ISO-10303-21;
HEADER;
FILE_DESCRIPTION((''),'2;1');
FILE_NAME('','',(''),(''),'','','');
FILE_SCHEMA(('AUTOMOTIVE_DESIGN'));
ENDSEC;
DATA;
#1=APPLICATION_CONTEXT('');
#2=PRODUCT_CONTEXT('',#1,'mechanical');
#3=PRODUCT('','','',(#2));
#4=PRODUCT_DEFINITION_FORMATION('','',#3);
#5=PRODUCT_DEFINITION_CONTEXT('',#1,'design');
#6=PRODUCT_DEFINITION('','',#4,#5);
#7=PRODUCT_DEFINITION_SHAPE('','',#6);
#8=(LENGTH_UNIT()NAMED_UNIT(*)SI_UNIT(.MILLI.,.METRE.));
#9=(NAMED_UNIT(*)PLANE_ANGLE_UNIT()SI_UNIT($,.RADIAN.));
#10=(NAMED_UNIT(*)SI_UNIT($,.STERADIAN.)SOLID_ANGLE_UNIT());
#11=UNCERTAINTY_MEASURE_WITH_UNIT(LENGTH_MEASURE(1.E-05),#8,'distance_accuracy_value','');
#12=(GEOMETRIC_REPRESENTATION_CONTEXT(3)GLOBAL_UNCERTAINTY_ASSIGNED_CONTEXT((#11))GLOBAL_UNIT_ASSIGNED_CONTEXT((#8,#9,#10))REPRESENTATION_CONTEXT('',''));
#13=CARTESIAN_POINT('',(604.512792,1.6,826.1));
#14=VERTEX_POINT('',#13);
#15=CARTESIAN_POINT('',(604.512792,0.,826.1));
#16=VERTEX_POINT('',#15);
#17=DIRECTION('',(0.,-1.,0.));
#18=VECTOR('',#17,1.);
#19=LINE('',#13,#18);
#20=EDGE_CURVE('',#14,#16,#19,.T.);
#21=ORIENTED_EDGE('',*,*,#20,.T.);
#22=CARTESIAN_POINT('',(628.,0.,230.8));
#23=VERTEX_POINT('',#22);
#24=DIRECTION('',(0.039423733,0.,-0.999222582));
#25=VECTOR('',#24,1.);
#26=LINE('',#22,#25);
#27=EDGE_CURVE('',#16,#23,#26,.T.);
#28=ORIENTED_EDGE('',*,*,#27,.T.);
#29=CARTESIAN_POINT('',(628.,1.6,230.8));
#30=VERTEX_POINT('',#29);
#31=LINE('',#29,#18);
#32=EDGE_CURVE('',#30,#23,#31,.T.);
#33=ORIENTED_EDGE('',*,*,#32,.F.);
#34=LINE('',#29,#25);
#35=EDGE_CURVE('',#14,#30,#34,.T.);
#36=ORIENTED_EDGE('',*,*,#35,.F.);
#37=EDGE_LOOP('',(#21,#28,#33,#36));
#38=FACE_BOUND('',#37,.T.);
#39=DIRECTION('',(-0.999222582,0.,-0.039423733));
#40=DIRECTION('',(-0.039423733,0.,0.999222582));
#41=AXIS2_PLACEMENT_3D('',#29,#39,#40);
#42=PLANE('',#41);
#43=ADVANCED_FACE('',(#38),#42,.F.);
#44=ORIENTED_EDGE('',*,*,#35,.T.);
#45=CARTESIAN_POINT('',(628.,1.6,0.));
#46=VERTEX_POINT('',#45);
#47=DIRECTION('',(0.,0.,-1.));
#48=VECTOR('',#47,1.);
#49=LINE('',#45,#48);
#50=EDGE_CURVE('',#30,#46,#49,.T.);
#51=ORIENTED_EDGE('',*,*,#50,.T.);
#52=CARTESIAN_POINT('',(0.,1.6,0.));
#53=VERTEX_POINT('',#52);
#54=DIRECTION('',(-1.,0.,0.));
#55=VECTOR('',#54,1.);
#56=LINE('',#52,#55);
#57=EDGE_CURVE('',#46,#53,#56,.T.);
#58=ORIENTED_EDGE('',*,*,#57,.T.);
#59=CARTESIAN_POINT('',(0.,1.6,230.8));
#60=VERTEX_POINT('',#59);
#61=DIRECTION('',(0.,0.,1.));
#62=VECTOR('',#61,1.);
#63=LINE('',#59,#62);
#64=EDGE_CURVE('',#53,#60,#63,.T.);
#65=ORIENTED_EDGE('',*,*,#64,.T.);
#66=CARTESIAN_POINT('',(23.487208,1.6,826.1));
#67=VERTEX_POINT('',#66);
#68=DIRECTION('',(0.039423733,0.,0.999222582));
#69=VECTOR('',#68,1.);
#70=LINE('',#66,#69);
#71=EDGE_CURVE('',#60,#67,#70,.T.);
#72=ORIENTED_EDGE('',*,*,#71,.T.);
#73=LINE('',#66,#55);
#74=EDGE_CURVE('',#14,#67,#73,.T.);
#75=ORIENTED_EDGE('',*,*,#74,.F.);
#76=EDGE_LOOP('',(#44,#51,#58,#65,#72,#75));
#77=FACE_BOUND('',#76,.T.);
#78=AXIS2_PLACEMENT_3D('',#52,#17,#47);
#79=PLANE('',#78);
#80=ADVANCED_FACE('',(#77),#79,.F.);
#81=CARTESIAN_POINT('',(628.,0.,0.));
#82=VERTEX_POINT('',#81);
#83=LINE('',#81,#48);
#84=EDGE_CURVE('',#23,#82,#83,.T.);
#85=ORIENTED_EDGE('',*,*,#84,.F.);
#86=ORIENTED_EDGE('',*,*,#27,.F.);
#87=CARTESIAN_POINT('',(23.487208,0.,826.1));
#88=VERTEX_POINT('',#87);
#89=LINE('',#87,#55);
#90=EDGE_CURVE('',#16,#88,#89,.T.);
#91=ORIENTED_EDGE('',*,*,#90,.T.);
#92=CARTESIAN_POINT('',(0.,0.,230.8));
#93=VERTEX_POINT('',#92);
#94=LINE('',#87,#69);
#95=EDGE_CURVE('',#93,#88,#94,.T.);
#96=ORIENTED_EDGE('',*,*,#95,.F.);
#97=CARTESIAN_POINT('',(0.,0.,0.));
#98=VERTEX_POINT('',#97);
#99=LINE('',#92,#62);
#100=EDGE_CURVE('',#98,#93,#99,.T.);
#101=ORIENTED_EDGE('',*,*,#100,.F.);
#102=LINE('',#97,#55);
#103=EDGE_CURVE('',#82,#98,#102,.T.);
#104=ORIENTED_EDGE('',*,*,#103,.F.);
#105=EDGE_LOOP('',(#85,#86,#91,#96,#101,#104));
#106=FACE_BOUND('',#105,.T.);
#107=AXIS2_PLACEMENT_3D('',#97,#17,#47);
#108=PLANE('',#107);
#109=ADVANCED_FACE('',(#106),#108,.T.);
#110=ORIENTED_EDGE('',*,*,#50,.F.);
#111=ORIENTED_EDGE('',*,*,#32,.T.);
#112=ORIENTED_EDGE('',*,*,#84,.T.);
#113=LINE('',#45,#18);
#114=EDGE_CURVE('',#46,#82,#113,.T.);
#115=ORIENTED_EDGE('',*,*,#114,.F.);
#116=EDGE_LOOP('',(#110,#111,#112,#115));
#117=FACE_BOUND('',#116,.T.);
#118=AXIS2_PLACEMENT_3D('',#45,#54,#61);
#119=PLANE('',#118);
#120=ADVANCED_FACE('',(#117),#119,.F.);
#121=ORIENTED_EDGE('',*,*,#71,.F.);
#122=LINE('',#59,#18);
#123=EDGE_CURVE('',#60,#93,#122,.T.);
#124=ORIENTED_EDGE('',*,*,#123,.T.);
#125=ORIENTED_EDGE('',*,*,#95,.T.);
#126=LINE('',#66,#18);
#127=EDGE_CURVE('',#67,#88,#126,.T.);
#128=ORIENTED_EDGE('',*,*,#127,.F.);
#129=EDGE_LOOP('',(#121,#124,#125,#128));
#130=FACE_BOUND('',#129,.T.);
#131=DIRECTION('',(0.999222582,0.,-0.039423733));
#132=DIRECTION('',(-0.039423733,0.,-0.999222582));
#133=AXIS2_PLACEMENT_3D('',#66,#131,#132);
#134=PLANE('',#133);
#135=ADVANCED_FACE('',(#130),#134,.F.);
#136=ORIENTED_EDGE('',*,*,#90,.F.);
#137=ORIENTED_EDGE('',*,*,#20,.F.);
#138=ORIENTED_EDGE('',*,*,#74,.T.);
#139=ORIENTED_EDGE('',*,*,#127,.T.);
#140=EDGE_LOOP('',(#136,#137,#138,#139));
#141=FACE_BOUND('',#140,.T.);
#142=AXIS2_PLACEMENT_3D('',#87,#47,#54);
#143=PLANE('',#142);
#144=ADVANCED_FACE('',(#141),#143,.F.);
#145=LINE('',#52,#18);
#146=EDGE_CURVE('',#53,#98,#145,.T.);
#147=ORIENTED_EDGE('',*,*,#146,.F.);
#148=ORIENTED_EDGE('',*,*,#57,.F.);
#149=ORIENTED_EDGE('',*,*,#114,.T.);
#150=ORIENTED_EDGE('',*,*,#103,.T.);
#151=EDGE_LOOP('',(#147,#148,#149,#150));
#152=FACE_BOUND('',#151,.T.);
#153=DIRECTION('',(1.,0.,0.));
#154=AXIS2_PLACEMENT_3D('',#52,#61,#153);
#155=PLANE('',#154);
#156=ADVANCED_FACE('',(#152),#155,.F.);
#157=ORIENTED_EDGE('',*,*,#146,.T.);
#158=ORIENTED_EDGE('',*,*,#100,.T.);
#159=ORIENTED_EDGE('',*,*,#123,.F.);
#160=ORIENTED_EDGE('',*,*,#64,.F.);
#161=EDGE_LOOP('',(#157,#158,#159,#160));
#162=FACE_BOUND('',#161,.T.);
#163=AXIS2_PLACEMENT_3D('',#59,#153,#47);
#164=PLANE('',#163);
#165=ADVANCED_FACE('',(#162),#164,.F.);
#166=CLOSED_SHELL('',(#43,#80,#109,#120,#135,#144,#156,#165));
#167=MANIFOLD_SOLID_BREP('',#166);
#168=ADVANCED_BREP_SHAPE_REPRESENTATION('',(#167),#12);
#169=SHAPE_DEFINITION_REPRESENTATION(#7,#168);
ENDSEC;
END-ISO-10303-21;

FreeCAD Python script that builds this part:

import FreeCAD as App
import Part
import Sketcher
from FreeCAD import Vector

doc = App.newDocument("Part")
body = doc.addObject("PartDesign::Body", "Body")

# Sketch on XZ plane
sketch1 = doc.addObject("Sketcher::SketchObject", "Sketch")
body.addObject(sketch1)
sketch1.AttachmentSupport = (doc.XZ_Plane, [""])
sketch1.MapMode = "FlatFace"
sketch1.addGeometry(Part.LineSegment(Vector(628, 0, 0), Vector(0, 0, 0)), False)
sketch1.addGeometry(Part.LineSegment(Vector(0, 0, 0), Vector(0, 231, 0)), False)
sketch1.addGeometry(Part.LineSegment(Vector(0, 231, 0), Vector(23, 826, 0)), False)
sketch1.addGeometry(Part.LineSegment(Vector(23, 826, 0), Vector(118, 1079, 0)), False)
sketch1.addGeometry(Part.LineSegment(Vector(118, 1079, 0), Vector(510, 1079, 0)), False)
sketch1.addGeometry(Part.LineSegment(Vector(510, 1079, 0), Vector(605, 826, 0)), False)
sketch1.addGeometry(Part.LineSegment(Vector(605, 826, 0), Vector(628, 231, 0)), False)
sketch1.addGeometry(Part.LineSegment(Vector(628, 231, 0), Vector(628, 0, 0)), False)
sketch1.addConstraint(Sketcher.Constraint("Coincident", 0, 2, 1, 1))
sketch1.addConstraint(Sketcher.Constraint("Coincident", 1, 2, 2, 1))
sketch1.addConstraint(Sketcher.Constraint("Coincident", 2, 2, 3, 1))
sketch1.addConstraint(Sketcher.Constraint("Coincident", 3, 2, 4, 1))
sketch1.addConstraint(Sketcher.Constraint("Coincident", 4, 2, 5, 1))
sketch1.addConstraint(Sketcher.Constraint("Coincident", 5, 2, 6, 1))
sketch1.addConstraint(Sketcher.Constraint("Coincident", 6, 2, 7, 1))
sketch1.addConstraint(Sketcher.Constraint("Coincident", 7, 2, 0, 1))
sketch1.addConstraint(Sketcher.Constraint("Horizontal", 0))
sketch1.addConstraint(Sketcher.Constraint("Vertical", 1))
sketch1.addConstraint(Sketcher.Constraint("Horizontal", 4))
sketch1.addConstraint(Sketcher.Constraint("Vertical", 7))
sketch1.addConstraint(Sketcher.Constraint("Coincident", 0, 2, -1, 1))
sketch1.addConstraint(Sketcher.Constraint("Horizontal", 2, 2, 5, 2))
sketch1.addConstraint(Sketcher.Constraint("Horizontal", 1, 2, 6, 2))
sketch1.addConstraint(Sketcher.Constraint("Equal", 3, 5))
sketch1.addConstraint(Sketcher.Constraint("Equal", 2, 6))
sketch1.addConstraint(Sketcher.Constraint("DistanceX", 0, 2, 0, 1, 628.0))
sketch1.addConstraint(Sketcher.Constraint("DistanceY", 1, 1, 1, 2, 230.8))
sketch1.addConstraint(Sketcher.Constraint("DistanceX", 4, 1, 4, 2, 391.54))
sketch1.addConstraint(Sketcher.Constraint("DistanceY", -1, 1, 2, 2, 826.1))
sketch1.addConstraint(Sketcher.Constraint("Distance", 3, 269.66))
sketch1.addConstraint(Sketcher.Constraint("DistanceY", -1, 1, 3, 2, 1078.568451))
pad1 = doc.addObject("PartDesign::Pad", "Pad")
body.addObject(pad1)
pad1.Profile = sketch1
pad1.Length = 1.6
pad1.Reversed = True

# Sketch on XZ plane
sketch2 = doc.addObject("Sketcher::SketchObject", "Sketch001")
body.addObject(sketch2)
sketch2.AttachmentSupport = (doc.XZ_Plane, [""])
sketch2.MapMode = "FlatFace"
sketch2.AttachmentOffset = App.Placement(Vector(0, 0, -1.6), App.Rotation())
sketch2.addGeometry(Part.LineSegment(Vector(605, 826, 0), Vector(23, 826, 0)), False)
sketch2.addGeometry(Part.LineSegment(Vector(23, 826, 0), Vector(118, 1079, 0)), False)
sketch2.addGeometry(Part.LineSegment(Vector(118, 1079, 0), Vector(510, 1079, 0)), False)
sketch2.addGeometry(Part.LineSegment(Vector(510, 1079, 0), Vector(605, 826, 0)), False)
sketch2.addConstraint(Sketcher.Constraint("Coincident", 0, 2, 1, 1))
sketch2.addConstraint(Sketcher.Constraint("Coincident", 1, 2, 2, 1))
sketch2.addConstraint(Sketcher.Constraint("Coincident", 2, 2, 3, 1))
sketch2.addConstraint(Sketcher.Constraint("Coincident", 3, 2, 0, 1))
sketch2.addConstraint(Sketcher.Constraint("Horizontal", 0))
sketch2.addConstraint(Sketcher.Constraint("Horizontal", 2))
sketch2.addConstraint(Sketcher.Constraint("Equal", 1, 3))
sketch2.addConstraint(Sketcher.Constraint("DistanceX", 2, 1, 2, 2, 391.54))
sketch2.addConstraint(Sketcher.Constraint("DistanceY", -1, 1, 0, 2, 826.1))
sketch2.addConstraint(Sketcher.Constraint("Distance", 1, 269.66))
sketch2.addConstraint(Sketcher.Constraint("DistanceX", -1, 1, 1, 2, 118.23))
sketch2.addConstraint(Sketcher.Constraint("DistanceX", 0, 2, 0, 1, 581.025584))
pocket1 = doc.addObject("PartDesign::Pocket", "Pocket")
body.addObject(pocket1)
pocket1.Profile = sketch2
pocket1.Type = "ThroughAll"
pocket1.Reversed = True

doc.recompute()
